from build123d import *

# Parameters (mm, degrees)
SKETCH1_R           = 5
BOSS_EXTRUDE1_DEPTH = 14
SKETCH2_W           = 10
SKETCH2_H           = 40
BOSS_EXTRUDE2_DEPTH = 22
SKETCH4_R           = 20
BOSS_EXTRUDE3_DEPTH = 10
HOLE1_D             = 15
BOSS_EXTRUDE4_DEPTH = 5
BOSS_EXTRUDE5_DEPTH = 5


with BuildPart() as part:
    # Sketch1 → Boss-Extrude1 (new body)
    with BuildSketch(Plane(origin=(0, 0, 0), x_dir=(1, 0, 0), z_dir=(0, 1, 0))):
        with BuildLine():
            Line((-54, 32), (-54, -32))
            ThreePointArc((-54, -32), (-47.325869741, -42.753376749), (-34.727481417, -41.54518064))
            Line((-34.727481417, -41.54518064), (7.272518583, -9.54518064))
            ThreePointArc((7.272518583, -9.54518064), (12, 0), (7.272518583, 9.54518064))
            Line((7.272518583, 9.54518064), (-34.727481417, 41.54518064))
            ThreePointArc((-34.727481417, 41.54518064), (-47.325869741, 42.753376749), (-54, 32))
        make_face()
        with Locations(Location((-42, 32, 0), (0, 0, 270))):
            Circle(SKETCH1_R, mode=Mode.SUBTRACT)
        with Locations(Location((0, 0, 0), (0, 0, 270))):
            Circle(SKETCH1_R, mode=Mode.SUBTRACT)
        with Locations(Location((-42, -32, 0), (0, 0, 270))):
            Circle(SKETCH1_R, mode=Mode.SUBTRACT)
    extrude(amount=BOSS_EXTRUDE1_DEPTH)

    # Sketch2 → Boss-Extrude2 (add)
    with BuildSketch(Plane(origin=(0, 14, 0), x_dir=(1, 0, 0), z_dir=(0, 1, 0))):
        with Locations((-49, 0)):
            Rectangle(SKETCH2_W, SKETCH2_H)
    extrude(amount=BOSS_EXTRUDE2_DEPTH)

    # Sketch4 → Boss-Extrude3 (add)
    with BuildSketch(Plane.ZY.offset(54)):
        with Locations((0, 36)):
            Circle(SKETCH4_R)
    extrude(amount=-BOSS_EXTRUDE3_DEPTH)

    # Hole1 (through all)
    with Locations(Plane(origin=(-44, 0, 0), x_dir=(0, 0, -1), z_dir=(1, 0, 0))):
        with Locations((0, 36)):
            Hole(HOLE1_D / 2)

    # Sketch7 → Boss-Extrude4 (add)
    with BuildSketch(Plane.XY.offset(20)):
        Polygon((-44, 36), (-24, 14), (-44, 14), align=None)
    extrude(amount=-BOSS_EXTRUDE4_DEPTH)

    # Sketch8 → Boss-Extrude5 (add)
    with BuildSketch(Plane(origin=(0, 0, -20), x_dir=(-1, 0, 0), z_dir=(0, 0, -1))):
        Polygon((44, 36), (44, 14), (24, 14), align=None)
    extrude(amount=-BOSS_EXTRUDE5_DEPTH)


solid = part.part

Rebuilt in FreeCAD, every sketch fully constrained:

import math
import FreeCAD as App
import Part
import Sketcher


def add_polygon(sketch, points):
    """Adds a closed chain of lines whose ends are joined by coincident constraints."""
    first, n = sketch.GeometryCount, len(points)
    for a, b in zip(points, points[1:] + points[:1]):
        sketch.addGeometry(Part.LineSegment(App.Vector(*a, 0), App.Vector(*b, 0)), False)
    for i in range(n):
        sketch.addConstraint(Sketcher.Constraint("Coincident", first + i, 2, first + (i + 1) % n, 1))

doc = App.newDocument("Part")
body = doc.addObject("PartDesign::Body", "Body")

# Sketch on XZ plane
sketch1 = body.newObject("Sketcher::SketchObject", "Sketch")
sketch1.AttachmentSupport = (doc.getObject("XZ_Plane"), [""])
sketch1.MapMode = "FlatFace"
sketch1.addGeometry([
    Part.LineSegment(App.Vector(-54, -32, 0), App.Vector(-54, 32, 0)),  # 0
    Part.ArcOfCircle(Part.Circle(App.Vector(-42, 32, 0), App.Vector(0, 0, 1), 12), math.radians(53), math.radians(180)),  # 1
    Part.LineSegment(App.Vector(-35, 42, 0), App.Vector(7, 10, 0)),  # 2
    Part.ArcOfCircle(Part.Circle(App.Vector(0, 0, 0), App.Vector(0, 0, 1), 12), math.radians(-53), math.radians(53)),  # 3
    Part.LineSegment(App.Vector(7, -10, 0), App.Vector(-35, -42, 0)),  # 4
    Part.ArcOfCircle(Part.Circle(App.Vector(-42, -32, 0), App.Vector(0, 0, 1), 12), math.radians(180), math.radians(307)),  # 5
    Part.Circle(App.Vector(-42, 32, 0), App.Vector(0, 0, 1), 5),  # 6
    Part.Circle(App.Vector(-42, -32, 0), App.Vector(0, 0, 1), 5),  # 7
    Part.Circle(App.Vector(0, 0, 0), App.Vector(0, 0, 1), 5),  # 8
], False)
sketch1.addConstraint([
    Sketcher.Constraint("Tangent", 0, 2, 1, 2),
    Sketcher.Constraint("Tangent", 1, 1, 2, 1),
    Sketcher.Constraint("Tangent", 2, 2, 3, 2),
    Sketcher.Constraint("Tangent", 3, 1, 4, 1),
    Sketcher.Constraint("Tangent", 4, 2, 5, 2),
    Sketcher.Constraint("Tangent", 5, 1, 0, 1),
    Sketcher.Constraint("Vertical", 0),
    Sketcher.Constraint("Coincident", 3, 3, -1, 1),
    Sketcher.Constraint("Coincident", 8, 3, -1, 1),
    Sketcher.Constraint("Coincident", 6, 3, 1, 3),
    Sketcher.Constraint("Coincident", 7, 3, 5, 3),
    Sketcher.Constraint("Equal", 1, 3),
    Sketcher.Constraint("Equal", 3, 5),
    Sketcher.Constraint("Equal", 6, 7),
    Sketcher.Constraint("Equal", 7, 8),
    Sketcher.Constraint("Vertical", 2, 2, 3, 1),
    Sketcher.Constraint("Diameter", 6, 10.0),
    Sketcher.Constraint("Radius", 1, 12.0),
    Sketcher.Constraint("DistanceY", 0, 1, 0, 2, 64.0),
    Sketcher.Constraint("DistanceX", 1, 3, -1, 1, 42.0),
])
pad1 = body.newObject("PartDesign::Pad", "Pad")
pad1.Profile = sketch1
pad1.Length = 14
pad1.Reversed = True

# Sketch on XZ plane
sketch2 = body.newObject("Sketcher::SketchObject", "Sketch001")
sketch2.AttachmentSupport = (doc.getObject("XZ_Plane"), [""])
sketch2.MapMode = "FlatFace"
sketch2.AttachmentOffset = App.Placement(App.Vector(0, 0, -14), App.Rotation())
add_polygon(sketch2, [(-54, -20), (-54, 20), (-44, 20), (-44, -20)])  # lines 0-3
sketch2.addConstraint([
    Sketcher.Constraint("Vertical", 0),
    Sketcher.Constraint("Horizontal", 1),
    Sketcher.Constraint("Vertical", 2),
    Sketcher.Constraint("Horizontal", 3),
    Sketcher.Constraint("DistanceX", 1, 1, 1, 2, 10.0),
    Sketcher.Constraint("DistanceY", 0, 1, 0, 2, 40.0),
    Sketcher.Constraint("DistanceX", 0, 2, -1, 1, 54.0),
    Sketcher.Constraint("DistanceY", -1, 1, 0, 2, 20.0),
])
pad2 = body.newObject("PartDesign::Pad", "Pad001")
pad2.Profile = sketch2
pad2.Length = 22
pad2.Reversed = True

# Sketch on YZ plane
sketch3 = body.newObject("Sketcher::SketchObject", "Sketch002")
sketch3.AttachmentSupport = (doc.getObject("YZ_Plane"), [""])
sketch3.MapMode = "FlatFace"
sketch3.AttachmentOffset = App.Placement(App.Vector(0, 0, -54), App.Rotation())
sketch3.addGeometry(Part.Circle(App.Vector(36, 0, 0), App.Vector(0, 0, 1), 20), False)
sketch3.addConstraint([
    Sketcher.Constraint("PointOnObject", 0, 3, -1),
    Sketcher.Constraint("Diameter", 0, 40.0),
    Sketcher.Constraint("DistanceX", -1, 1, 0, 3, 36.0),
])
pad3 = body.newObject("PartDesign::Pad", "Pad002")
pad3.Profile = sketch3
pad3.Length = 10

# Sketch on YZ plane
sketch4 = body.newObject("Sketcher::SketchObject", "Sketch003")
sketch4.AttachmentSupport = (doc.getObject("YZ_Plane"), [""])
sketch4.MapMode = "FlatFace"
sketch4.AttachmentOffset = App.Placement(App.Vector(0, 0, -44), App.Rotation())
sketch4.addGeometry(Part.Circle(App.Vector(36, 0, 0), App.Vector(0, 0, 1), 8), False)
sketch4.addConstraint([
    Sketcher.Constraint("PointOnObject", 0, 3, -1),
    Sketcher.Constraint("Diameter", 0, 15.0),
    Sketcher.Constraint("DistanceX", -1, 1, 0, 3, 36.0),
])
doc.recompute()
hole = body.newObject("PartDesign::Hole", "Hole")
hole.Profile = sketch4
hole.ThreadType = "None"
hole.Diameter = 15
hole.DepthType = "ThroughAll"

# Sketch on XY plane
sketch5 = body.newObject("Sketcher::SketchObject", "Sketch004")
sketch5.AttachmentSupport = (doc.getObject("XY_Plane"), [""])
sketch5.MapMode = "FlatFace"
sketch5.AttachmentOffset = App.Placement(App.Vector(0, 0, 20), App.Rotation())
add_polygon(sketch5, [(-24, 14), (-44, 36), (-44, 14)])  # lines 0-2
sketch5.addConstraint([
    Sketcher.Constraint("Vertical", 1),
    Sketcher.Constraint("Horizontal", 2),
    Sketcher.Constraint("DistanceX", 2, 1, 2, 2, 20.0),
    Sketcher.Constraint("DistanceY", 1, 2, 1, 1, 22.0),
    Sketcher.Constraint("DistanceX", 0, 2, -1, 1, 44.0),
    Sketcher.Constraint("DistanceY", -1, 1, 0, 2, 36.0),
])
pad4 = body.newObject("PartDesign::Pad", "Pad003")
pad4.Profile = sketch5
pad4.Length = 5
pad4.Reversed = True

# Sketch on XY plane
sketch6 = body.newObject("Sketcher::SketchObject", "Sketch005")
sketch6.AttachmentSupport = (doc.getObject("XY_Plane"), [""])
sketch6.MapMode = "FlatFace"
sketch6.AttachmentOffset = App.Placement(App.Vector(0, 0, -20), App.Rotation())
add_polygon(sketch6, [(-44, 14), (-44, 36), (-24, 14)])  # lines 0-2
sketch6.addConstraint([
    Sketcher.Constraint("Vertical", 0),
    Sketcher.Constraint("Horizontal", 2),
    Sketcher.Constraint("DistanceX", 2, 2, 2, 1, 20.0),
    Sketcher.Constraint("DistanceY", 0, 1, 0, 2, 22.0),
    Sketcher.Constraint("DistanceX", 0, 2, -1, 1, 44.0),
    Sketcher.Constraint("DistanceY", -1, 1, 0, 2, 36.0),
])
pad5 = body.newObject("PartDesign::Pad", "Pad004")
pad5.Profile = sketch6
pad5.Length = 5

doc.recompute()
